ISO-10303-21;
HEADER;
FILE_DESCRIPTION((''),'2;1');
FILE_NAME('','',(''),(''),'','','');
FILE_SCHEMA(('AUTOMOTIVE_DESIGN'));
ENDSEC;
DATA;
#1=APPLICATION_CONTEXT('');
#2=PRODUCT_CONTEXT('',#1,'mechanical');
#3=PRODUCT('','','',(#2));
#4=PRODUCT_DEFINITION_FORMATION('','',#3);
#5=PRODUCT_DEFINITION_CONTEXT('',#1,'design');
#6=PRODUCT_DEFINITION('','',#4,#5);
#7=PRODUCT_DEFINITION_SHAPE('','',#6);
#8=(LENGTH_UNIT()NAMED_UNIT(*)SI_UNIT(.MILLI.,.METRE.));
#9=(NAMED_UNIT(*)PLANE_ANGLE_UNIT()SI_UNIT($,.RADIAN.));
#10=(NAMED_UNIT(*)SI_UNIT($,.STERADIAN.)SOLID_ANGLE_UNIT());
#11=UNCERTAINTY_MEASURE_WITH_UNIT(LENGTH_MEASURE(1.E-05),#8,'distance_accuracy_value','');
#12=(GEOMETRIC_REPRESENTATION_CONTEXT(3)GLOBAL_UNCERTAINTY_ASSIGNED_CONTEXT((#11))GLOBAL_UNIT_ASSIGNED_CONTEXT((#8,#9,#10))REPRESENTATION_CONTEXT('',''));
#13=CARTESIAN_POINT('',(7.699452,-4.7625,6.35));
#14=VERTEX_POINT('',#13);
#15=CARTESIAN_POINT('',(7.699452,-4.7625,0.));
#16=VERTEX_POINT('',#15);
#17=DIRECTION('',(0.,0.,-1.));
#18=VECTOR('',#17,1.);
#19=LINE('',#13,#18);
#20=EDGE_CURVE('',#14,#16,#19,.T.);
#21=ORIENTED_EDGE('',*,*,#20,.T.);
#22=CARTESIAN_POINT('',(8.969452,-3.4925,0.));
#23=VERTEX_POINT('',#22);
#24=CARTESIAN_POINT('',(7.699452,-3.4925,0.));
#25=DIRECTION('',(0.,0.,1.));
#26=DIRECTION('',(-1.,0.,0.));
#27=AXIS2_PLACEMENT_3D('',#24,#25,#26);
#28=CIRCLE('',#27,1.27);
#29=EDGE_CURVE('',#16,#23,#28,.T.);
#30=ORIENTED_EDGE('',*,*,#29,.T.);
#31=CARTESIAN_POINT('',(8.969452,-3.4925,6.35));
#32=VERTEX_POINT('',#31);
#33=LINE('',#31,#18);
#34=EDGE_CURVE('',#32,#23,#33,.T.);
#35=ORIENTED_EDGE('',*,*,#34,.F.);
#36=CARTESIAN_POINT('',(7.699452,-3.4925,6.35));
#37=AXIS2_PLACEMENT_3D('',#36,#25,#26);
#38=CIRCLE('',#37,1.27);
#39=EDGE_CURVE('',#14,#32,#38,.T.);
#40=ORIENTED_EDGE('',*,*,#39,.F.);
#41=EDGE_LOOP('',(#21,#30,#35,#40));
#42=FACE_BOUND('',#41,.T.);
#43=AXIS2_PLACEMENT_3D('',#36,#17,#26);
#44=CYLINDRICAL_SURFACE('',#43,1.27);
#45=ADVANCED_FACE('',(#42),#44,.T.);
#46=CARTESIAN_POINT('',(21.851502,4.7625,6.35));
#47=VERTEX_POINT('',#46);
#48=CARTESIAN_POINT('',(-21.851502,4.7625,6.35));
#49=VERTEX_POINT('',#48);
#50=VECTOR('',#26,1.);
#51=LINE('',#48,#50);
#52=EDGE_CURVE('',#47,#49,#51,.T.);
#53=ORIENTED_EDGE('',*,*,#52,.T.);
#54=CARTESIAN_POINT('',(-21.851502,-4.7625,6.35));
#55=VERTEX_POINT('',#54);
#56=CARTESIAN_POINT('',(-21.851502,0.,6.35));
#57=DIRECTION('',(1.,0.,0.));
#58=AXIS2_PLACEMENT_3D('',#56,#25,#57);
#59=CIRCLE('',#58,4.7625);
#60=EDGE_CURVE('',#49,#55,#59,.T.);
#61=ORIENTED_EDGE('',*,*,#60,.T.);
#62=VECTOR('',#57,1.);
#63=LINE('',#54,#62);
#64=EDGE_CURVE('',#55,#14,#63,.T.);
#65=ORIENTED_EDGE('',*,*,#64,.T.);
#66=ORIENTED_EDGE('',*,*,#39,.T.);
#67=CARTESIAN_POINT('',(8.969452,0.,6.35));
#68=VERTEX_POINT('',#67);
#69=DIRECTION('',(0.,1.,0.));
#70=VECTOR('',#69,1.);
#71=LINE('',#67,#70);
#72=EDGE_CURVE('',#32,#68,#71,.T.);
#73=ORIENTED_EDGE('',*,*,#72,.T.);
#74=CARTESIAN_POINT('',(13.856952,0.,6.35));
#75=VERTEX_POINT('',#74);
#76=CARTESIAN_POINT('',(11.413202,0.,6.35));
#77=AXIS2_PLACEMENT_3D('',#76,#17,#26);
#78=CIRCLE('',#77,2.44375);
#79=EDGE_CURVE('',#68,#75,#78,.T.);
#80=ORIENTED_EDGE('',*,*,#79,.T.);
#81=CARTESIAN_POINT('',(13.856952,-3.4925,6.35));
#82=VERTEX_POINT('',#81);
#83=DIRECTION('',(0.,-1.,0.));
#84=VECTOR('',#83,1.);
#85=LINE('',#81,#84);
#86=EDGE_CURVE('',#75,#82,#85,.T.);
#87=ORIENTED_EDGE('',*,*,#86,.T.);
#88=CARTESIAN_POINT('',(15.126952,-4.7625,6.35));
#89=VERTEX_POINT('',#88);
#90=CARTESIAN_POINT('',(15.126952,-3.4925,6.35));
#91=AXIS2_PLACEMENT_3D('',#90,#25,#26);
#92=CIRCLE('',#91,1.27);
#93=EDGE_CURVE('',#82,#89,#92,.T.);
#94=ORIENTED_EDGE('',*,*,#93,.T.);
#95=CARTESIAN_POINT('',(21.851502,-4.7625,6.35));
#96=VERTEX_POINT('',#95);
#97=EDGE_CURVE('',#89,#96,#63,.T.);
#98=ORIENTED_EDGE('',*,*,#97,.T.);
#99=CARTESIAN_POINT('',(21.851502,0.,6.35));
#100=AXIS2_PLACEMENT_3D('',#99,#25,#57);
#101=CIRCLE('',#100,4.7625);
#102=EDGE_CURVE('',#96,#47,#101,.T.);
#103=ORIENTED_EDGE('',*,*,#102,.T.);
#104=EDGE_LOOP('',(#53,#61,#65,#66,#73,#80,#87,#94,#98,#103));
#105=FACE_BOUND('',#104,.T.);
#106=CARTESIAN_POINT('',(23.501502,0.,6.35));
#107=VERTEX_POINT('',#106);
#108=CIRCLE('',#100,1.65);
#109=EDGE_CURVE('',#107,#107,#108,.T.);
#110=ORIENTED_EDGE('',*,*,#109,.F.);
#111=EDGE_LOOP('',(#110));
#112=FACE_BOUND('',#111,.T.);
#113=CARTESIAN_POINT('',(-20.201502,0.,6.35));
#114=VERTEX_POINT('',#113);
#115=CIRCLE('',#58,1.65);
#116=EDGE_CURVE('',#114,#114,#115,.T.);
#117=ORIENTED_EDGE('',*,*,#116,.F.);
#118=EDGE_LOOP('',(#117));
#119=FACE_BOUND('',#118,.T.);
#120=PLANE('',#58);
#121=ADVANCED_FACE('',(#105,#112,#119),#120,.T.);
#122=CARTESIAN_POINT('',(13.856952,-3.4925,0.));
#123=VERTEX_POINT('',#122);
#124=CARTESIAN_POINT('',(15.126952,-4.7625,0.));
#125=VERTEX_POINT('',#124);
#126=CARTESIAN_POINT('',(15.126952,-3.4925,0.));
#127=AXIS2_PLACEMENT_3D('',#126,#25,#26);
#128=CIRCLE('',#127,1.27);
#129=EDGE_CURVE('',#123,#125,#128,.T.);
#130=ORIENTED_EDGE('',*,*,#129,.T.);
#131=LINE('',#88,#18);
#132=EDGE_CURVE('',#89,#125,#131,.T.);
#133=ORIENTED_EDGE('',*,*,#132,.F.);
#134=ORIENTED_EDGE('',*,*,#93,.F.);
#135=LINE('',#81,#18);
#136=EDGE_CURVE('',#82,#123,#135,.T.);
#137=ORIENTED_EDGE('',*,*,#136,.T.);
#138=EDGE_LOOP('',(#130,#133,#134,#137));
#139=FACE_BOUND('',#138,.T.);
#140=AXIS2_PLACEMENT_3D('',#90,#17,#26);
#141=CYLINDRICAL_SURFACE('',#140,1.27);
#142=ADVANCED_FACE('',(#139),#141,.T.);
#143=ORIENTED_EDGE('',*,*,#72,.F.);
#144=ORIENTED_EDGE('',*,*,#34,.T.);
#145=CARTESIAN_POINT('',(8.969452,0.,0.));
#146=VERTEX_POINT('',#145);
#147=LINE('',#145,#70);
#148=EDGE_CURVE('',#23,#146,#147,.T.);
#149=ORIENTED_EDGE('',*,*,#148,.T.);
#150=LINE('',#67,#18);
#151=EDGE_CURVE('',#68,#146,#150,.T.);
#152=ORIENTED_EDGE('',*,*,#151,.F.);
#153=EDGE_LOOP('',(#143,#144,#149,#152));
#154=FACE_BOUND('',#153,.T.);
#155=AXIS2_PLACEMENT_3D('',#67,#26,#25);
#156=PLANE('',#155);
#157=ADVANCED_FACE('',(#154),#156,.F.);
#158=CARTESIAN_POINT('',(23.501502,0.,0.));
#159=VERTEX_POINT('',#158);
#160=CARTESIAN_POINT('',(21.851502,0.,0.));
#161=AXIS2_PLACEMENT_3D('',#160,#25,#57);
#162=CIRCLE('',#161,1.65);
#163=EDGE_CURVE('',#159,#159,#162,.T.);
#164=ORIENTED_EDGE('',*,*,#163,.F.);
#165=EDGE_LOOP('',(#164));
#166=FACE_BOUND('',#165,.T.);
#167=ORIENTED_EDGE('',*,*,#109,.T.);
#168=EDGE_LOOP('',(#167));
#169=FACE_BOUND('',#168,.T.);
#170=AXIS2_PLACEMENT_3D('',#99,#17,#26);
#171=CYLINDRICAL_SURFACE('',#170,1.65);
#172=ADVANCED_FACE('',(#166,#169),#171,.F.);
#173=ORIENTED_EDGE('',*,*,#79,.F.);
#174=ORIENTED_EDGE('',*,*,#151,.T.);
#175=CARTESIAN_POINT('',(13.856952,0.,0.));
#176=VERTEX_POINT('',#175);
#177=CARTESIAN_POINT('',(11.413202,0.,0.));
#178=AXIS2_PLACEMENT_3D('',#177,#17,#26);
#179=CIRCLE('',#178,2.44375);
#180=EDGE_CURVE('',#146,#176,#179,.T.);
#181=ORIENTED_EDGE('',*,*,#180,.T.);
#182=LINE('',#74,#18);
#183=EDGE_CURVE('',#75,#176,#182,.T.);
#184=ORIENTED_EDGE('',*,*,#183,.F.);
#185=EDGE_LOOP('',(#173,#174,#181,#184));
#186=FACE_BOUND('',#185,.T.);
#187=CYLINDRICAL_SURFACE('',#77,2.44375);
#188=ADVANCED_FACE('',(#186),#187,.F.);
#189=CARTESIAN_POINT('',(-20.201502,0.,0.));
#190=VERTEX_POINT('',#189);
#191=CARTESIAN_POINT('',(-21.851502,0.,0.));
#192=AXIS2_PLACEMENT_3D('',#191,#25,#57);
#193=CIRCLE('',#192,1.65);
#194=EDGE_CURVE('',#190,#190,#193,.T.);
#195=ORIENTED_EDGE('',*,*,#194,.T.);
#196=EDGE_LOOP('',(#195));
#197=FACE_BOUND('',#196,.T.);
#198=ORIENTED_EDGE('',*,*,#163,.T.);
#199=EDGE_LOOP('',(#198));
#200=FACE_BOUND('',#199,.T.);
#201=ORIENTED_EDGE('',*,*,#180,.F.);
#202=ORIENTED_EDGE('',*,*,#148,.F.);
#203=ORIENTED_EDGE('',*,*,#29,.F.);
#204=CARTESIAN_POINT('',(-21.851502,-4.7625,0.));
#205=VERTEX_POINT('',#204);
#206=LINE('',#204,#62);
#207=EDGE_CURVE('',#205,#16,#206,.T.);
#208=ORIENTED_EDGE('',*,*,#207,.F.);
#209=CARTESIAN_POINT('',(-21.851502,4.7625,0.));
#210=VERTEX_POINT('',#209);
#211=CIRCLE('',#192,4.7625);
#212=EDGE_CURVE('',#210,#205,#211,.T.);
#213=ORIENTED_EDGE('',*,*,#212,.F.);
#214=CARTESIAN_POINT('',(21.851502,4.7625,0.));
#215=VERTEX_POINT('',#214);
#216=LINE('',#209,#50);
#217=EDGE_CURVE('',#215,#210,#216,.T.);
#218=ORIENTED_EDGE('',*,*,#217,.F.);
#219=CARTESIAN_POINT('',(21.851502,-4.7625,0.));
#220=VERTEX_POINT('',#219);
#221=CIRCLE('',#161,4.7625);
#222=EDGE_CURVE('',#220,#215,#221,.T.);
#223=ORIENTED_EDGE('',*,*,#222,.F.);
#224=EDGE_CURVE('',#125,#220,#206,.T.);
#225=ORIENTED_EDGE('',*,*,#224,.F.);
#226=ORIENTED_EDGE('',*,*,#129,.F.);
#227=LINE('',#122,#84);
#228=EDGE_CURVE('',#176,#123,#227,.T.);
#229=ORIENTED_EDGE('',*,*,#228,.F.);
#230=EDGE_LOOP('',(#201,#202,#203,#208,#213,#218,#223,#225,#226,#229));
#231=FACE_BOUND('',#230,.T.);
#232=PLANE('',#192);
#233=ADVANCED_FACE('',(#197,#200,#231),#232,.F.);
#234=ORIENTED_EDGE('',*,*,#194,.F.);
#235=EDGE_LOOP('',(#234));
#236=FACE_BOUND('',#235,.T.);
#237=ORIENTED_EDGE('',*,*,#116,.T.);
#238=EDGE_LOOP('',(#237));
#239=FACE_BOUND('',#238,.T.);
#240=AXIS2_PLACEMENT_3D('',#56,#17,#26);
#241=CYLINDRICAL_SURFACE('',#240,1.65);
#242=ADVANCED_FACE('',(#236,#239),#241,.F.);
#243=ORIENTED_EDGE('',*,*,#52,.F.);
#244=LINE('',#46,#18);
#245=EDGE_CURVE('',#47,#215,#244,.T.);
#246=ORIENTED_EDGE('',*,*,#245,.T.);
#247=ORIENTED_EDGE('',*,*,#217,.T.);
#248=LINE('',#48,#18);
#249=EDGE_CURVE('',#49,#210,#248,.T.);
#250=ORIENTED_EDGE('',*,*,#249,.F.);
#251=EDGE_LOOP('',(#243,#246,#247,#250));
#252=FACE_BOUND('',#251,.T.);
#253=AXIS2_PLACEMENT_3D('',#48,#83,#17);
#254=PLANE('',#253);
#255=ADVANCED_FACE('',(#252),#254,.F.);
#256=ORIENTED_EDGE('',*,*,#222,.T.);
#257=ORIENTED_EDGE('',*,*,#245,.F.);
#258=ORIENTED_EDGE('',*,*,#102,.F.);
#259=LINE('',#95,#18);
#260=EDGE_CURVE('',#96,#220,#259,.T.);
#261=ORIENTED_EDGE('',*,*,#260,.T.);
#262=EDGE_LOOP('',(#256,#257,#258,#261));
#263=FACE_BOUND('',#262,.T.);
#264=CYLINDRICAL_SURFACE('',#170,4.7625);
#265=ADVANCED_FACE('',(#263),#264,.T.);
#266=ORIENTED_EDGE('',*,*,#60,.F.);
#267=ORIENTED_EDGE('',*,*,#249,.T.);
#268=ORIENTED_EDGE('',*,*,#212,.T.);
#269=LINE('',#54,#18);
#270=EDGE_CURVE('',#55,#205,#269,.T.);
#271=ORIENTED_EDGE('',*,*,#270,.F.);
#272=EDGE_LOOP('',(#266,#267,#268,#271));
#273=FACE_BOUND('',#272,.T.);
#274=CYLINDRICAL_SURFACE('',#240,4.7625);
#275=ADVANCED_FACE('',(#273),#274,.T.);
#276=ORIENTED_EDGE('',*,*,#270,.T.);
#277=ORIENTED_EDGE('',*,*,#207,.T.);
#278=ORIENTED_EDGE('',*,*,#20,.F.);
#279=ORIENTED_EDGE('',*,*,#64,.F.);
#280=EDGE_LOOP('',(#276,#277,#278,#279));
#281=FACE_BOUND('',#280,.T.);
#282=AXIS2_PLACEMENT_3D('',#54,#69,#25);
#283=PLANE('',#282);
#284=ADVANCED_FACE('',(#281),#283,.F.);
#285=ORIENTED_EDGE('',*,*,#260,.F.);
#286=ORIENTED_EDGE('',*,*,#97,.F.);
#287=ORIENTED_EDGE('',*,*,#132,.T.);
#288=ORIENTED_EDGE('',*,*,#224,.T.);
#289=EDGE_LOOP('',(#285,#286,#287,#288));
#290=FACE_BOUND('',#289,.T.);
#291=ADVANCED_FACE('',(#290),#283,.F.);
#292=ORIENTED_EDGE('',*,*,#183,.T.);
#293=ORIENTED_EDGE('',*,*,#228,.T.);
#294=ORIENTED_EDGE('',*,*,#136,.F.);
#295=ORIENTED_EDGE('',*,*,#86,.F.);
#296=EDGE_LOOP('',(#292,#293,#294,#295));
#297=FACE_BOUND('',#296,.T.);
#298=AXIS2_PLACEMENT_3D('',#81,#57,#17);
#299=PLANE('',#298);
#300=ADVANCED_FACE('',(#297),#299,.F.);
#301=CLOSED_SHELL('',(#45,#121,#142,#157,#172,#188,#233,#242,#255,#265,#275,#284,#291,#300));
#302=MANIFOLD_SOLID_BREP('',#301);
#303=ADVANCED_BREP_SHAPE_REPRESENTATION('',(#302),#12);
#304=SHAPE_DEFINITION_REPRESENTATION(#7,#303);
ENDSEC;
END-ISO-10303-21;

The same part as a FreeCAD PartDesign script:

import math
import FreeCAD as App
import Part
import Sketcher

V = App.Vector
Q = App.Units.Quantity

doc = App.newDocument("Part")
body = doc.addObject("PartDesign::Body", "Body")

# Sketch on XY plane
sketch1 = body.newObject("Sketcher::SketchObject", "Sketch")
sketch1.AttachmentSupport = (doc.getObject("XY_Plane"), [""])
sketch1.MapMode = "FlatFace"
sketch1.addGeometry(Part.LineSegment(V(21.851502, 4.7625, 0), V(-21.851502, 4.7625, 0)), False)
sketch1.addGeometry(Part.ArcOfCircle(Part.Circle(V(-21.851502, 0, 0), V(0, 0, 1), 4.7625), math.radians(90), math.radians(270)), False)
sketch1.addGeometry(Part.LineSegment(V(-21.851502, -4.7625, 0), V(21.851502, -4.7625, 0)), False)
sketch1.addGeometry(Part.ArcOfCircle(Part.Circle(V(21.851502, 0, 0), V(0, 0, 1), 4.7625), math.radians(-90), math.radians(90)), False)
sketch1.addGeometry(Part.Circle(V(21.851502, 0, 0), V(0, 0, 1), 1.65), False)
sketch1.addGeometry(Part.Circle(V(-21.851502, 0, 0), V(0, 0, 1), 1.65), False)
sketch1.addConstraint(Sketcher.Constraint("Tangent", 0, 2, 1, 1))
sketch1.addConstraint(Sketcher.Constraint("Tangent", 1, 2, 2, 1))
sketch1.addConstraint(Sketcher.Constraint("Tangent", 2, 2, 3, 1))
sketch1.addConstraint(Sketcher.Constraint("Tangent", 3, 2, 0, 1))
sketch1.addConstraint(Sketcher.Constraint("Horizontal", 0))
sketch1.addConstraint(Sketcher.Constraint("Horizontal", 2))
sketch1.addConstraint(Sketcher.Constraint("Coincident", 4, 3, 3, 3))
sketch1.addConstraint(Sketcher.Constraint("Coincident", 5, 3, 1, 3))
sketch1.addConstraint(Sketcher.Constraint("Equal", 4, 5))
sketch1.addConstraint(Sketcher.Constraint("Symmetric", 1, 3, 3, 3, -1, 1))
sketch1.addConstraint(Sketcher.Constraint("Radius", 1, Q("0.1875 in")))
sketch1.addConstraint(Sketcher.Constraint("Diameter", 4, Q("3.3 mm")))
sketch1.addConstraint(Sketcher.Constraint("DistanceX", 1, 3, -1, 1, Q("21.851502 mm")))
pad1 = body.newObject("PartDesign::Pad", "Pad")
pad1.Profile = sketch1
pad1.Length = Q("0.25 in")

# Sketch on XY plane
sketch2 = body.newObject("Sketcher::SketchObject", "Sketch001")
sketch2.AttachmentSupport = (doc.getObject("XY_Plane"), [""])
sketch2.MapMode = "FlatFace"
sketch2.addGeometry(Part.LineSegment(V(8.969452, -3.4925, 0), V(8.969452, 0, 0)), False)
sketch2.addGeometry(Part.ArcOfCircle(Part.Circle(V(11.413202, 0, 0), V(0, 0, 1), 2.44375), math.radians(0), math.radians(180)), False)
sketch2.addGeometry(Part.LineSegment(V(13.856952, 0, 0), V(13.856952, -3.4925, 0)), False)
sketch2.addGeometry(Part.ArcOfCircle(Part.Circle(V(15.126952, -3.4925, 0), V(0, 0, 1), 1.27), math.radians(180), math.radians(270)), False)
sketch2.addGeometry(Part.LineSegment(V(15.126952, -4.7625, 0), V(7.699452, -4.7625, 0)), False)
sketch2.addGeometry(Part.ArcOfCircle(Part.Circle(V(7.699452, -3.4925, 0), V(0, 0, 1), 1.27), math.radians(-90), math.radians(0)), False)
sketch2.addConstraint(Sketcher.Constraint("Tangent", 0, 2, 1, 2))
sketch2.addConstraint(Sketcher.Constraint("Tangent", 1, 1, 2, 1))
sketch2.addConstraint(Sketcher.Constraint("Tangent", 2, 2, 3, 1))
sketch2.addConstraint(Sketcher.Constraint("Tangent", 3, 2, 4, 1))
sketch2.addConstraint(Sketcher.Constraint("Tangent", 4, 2, 5, 1))
sketch2.addConstraint(Sketcher.Constraint("Tangent", 5, 2, 0, 1))
sketch2.addConstraint(Sketcher.Constraint("Vertical", 0))
sketch2.addConstraint(Sketcher.Constraint("Vertical", 2))
sketch2.addConstraint(Sketcher.Constraint("Horizontal", 4))
sketch2.addConstraint(Sketcher.Constraint("Equal", 3, 5))
sketch2.addConstraint(Sketcher.Constraint("PointOnObject", 1, 3, -1))
sketch2.addConstraint(Sketcher.Constraint("Radius", 3, Q("0.05 in")))
sketch2.addConstraint(Sketcher.Constraint("DistanceY", 0, 1, 0, 2, Q("0.1375 in")))
sketch2.addConstraint(Sketcher.Constraint("Radius", 1, Q("2.44375 mm")))
sketch2.addConstraint(Sketcher.Constraint("DistanceX", -1, 1, 1, 3, Q("11.413202 mm")))
pocket1 = body.newObject("PartDesign::Pocket", "Pocket")
pocket1.Profile = sketch2
pocket1.Type = "ThroughAll"
pocket1.Reversed = True

doc.recompute()
